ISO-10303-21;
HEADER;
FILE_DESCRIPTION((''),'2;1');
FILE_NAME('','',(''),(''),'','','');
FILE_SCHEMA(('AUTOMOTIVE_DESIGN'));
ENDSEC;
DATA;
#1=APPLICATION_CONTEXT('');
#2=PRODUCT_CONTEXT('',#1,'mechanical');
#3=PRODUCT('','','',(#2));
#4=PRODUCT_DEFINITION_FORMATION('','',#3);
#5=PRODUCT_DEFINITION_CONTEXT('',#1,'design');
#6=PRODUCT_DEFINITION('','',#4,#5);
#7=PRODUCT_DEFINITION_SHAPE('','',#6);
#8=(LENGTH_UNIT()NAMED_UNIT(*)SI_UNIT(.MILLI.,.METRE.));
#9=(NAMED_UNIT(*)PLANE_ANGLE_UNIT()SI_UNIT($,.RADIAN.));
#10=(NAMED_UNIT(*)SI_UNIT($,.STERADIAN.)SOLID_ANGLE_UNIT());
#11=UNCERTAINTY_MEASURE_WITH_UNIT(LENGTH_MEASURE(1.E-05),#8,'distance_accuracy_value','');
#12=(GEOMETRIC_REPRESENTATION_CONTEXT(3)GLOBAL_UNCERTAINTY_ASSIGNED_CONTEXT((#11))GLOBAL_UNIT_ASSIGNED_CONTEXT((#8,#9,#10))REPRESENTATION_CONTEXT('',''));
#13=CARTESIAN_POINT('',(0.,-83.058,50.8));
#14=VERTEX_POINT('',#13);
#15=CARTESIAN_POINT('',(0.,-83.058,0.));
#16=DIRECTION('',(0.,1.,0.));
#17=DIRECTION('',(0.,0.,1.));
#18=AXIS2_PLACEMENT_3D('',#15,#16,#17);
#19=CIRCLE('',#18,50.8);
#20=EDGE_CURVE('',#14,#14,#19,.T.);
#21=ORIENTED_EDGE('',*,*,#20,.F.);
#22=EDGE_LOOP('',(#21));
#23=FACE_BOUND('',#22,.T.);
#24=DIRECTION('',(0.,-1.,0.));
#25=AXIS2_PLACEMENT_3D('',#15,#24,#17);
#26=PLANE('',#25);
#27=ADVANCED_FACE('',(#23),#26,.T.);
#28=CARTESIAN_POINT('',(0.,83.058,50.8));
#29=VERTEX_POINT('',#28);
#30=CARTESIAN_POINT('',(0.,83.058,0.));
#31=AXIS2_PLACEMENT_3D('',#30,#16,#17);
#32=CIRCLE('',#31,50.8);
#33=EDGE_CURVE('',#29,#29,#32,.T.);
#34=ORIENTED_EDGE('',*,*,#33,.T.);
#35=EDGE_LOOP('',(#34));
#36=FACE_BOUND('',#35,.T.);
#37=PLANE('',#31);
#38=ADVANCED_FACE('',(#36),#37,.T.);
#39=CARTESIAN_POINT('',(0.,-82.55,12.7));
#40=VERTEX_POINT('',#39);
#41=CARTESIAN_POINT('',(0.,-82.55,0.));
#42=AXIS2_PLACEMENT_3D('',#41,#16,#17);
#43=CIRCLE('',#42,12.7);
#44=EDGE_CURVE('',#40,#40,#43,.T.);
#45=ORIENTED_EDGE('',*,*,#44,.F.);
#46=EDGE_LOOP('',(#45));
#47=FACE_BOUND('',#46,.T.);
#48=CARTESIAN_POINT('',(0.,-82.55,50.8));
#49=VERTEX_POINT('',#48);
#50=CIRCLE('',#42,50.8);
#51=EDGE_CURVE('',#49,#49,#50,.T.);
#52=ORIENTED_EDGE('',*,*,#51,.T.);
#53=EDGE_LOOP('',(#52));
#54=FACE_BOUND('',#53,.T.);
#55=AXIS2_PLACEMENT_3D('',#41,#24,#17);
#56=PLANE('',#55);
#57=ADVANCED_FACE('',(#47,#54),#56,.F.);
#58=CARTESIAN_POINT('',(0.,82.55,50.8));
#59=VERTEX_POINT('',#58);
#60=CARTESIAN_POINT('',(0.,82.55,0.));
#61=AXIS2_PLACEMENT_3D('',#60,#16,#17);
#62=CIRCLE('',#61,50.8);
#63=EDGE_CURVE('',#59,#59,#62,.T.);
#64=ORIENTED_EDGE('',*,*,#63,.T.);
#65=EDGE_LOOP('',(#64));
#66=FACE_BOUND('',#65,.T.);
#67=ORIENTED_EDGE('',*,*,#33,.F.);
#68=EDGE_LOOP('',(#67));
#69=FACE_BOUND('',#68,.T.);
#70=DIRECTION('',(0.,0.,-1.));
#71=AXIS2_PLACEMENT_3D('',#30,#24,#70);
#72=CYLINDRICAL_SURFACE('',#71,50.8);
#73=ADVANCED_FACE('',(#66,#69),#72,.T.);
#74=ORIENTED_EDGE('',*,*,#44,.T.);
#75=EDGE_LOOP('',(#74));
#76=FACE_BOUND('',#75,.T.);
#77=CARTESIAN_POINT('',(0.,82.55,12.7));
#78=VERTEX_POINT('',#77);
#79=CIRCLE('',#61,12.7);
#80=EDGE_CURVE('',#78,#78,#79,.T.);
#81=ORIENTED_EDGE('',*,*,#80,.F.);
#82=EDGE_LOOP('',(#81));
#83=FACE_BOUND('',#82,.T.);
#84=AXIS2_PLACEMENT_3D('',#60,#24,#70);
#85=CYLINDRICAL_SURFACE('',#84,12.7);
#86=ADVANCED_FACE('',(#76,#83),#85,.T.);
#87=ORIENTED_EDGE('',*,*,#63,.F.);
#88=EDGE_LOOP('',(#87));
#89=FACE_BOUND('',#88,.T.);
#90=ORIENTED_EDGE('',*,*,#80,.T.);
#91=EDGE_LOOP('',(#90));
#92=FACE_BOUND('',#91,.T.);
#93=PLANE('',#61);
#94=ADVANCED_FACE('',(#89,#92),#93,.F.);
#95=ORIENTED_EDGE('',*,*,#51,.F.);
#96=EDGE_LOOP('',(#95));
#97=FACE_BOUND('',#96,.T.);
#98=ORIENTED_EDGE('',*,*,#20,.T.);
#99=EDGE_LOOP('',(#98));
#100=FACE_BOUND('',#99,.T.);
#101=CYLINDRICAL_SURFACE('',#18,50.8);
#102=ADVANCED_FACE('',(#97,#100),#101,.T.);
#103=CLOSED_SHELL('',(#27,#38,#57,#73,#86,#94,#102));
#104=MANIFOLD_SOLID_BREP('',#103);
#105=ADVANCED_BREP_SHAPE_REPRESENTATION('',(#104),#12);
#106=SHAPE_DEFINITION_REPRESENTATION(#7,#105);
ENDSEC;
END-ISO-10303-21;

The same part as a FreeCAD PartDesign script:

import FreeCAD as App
import Part
import Sketcher

V = App.Vector
Q = App.Units.Quantity

doc = App.newDocument("Part")
body = doc.addObject("PartDesign::Body", "Body")

# Sketch on XZ plane
sketch1 = doc.addObject("Sketcher::SketchObject", "Sketch")
body.addObject(sketch1)
sketch1.AttachmentSupport = (doc.XZ_Plane, [""])
sketch1.MapMode = "FlatFace"
sketch1.addGeometry(Part.Circle(V(0, 0, 0), V(0, 0, 1), 12.7), False)
sketch1.addConstraint([
    Sketcher.Constraint("Coincident", 0, 3, -1, 1),
    Sketcher.Constraint("Diameter", 0, Q("1 in")),
])
pad1 = doc.addObject("PartDesign::Pad", "Pad")
body.addObject(pad1)
pad1.Profile = sketch1
pad1.Length = Q("6.5 in")
pad1.Midplane = True

# Sketch on XZ plane
sketch2 = doc.addObject("Sketcher::SketchObject", "Sketch001")
body.addObject(sketch2)
sketch2.AttachmentSupport = (doc.XZ_Plane, [""])
sketch2.MapMode = "FlatFace"
sketch2.AttachmentOffset = App.Placement(V(0, 0, -3.25 * 25.4), App.Rotation())
sketch2.addGeometry(Part.Circle(V(0, 0, 0), V(0, 0, 1), 50.8), False)
sketch2.addConstraint([
    Sketcher.Constraint("Coincident", 0, 3, -1, 1),
    Sketcher.Constraint("Diameter", 0, Q("4 in")),
])
pad2 = doc.addObject("PartDesign::Pad", "Pad001")
body.addObject(pad2)
pad2.Profile = sketch2
pad2.Length = Q("0.02 in")
pad2.Reversed = True
doc.recompute()

mirrored = doc.addObject("PartDesign::Mirrored", "Mirrored")
body.addObject(mirrored)
mirrored.Originals = [pad2]
mirrored.MirrorPlane = (doc.XZ_Plane, [""])
body.Tip = mirrored

doc.recompute()
